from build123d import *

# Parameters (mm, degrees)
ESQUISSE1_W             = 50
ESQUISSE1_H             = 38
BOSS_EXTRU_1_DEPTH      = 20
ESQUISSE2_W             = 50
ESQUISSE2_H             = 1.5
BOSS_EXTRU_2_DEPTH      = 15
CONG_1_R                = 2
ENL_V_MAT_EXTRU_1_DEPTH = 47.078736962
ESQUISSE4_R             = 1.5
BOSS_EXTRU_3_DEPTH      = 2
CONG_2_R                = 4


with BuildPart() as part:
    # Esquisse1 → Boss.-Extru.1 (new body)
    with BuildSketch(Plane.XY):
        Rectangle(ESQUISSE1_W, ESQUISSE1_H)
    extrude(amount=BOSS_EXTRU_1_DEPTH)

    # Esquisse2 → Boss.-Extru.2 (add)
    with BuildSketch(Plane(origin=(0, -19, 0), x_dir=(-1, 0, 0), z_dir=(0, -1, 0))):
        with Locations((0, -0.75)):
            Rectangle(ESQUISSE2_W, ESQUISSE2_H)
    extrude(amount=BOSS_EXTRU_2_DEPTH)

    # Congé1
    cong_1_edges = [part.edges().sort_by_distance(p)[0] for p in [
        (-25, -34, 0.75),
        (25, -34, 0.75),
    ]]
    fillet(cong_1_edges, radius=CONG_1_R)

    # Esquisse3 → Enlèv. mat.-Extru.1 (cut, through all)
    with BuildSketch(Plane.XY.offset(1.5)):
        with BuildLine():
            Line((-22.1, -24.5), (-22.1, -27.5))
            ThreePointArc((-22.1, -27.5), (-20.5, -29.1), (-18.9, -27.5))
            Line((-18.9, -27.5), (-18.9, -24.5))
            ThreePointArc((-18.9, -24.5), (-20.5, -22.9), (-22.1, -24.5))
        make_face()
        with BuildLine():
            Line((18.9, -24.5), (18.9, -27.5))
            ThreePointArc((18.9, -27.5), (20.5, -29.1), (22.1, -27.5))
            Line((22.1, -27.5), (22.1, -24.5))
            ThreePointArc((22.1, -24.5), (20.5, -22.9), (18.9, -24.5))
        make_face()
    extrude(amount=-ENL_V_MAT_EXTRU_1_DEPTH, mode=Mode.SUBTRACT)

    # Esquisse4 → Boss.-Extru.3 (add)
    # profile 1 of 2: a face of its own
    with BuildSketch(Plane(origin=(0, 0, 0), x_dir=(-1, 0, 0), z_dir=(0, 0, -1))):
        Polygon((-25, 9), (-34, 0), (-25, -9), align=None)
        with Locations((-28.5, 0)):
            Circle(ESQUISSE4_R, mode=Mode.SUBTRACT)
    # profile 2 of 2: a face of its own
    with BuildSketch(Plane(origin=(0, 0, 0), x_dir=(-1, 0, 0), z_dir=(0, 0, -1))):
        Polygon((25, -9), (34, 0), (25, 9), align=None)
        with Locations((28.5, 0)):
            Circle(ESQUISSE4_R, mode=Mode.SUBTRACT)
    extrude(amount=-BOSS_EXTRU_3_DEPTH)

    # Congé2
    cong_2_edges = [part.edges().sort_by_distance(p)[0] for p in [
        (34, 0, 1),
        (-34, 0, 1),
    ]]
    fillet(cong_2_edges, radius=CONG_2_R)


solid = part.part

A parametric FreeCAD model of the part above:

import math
import FreeCAD as App
import Part
import Sketcher


def edges_at(feature, points):
    """Names of the edges that pass closest to the given points."""
    edges = feature.Shape.Edges
    near = lambda p: min(range(len(edges)), key=lambda i: edges[i].distToShape(Part.Vertex(*p))[0])
    return sorted({f"Edge{near(p) + 1}" for p in points})

doc = App.newDocument("Part")
body = doc.addObject("PartDesign::Body", "Body")

sketch1 = doc.addObject("Sketcher::SketchObject", "Sketch")
body.addObject(sketch1)
sketch1.AttachmentSupport = (doc.XY_Plane, [""])
sketch1.MapMode = "FlatFace"
sketch1.addGeometry(Part.LineSegment(App.Vector(-25, 19, 0), App.Vector(-25, -19, 0)), False)
sketch1.addGeometry(Part.LineSegment(App.Vector(-25, -19, 0), App.Vector(25, -19, 0)), False)
sketch1.addGeometry(Part.LineSegment(App.Vector(25, -19, 0), App.Vector(25, 19, 0)), False)
sketch1.addGeometry(Part.LineSegment(App.Vector(25, 19, 0), App.Vector(-25, 19, 0)), False)
sketch1.addConstraint(Sketcher.Constraint("Coincident", 0, 2, 1, 1))
sketch1.addConstraint(Sketcher.Constraint("Coincident", 1, 2, 2, 1))
sketch1.addConstraint(Sketcher.Constraint("Coincident", 2, 2, 3, 1))
sketch1.addConstraint(Sketcher.Constraint("Coincident", 3, 2, 0, 1))
sketch1.addConstraint(Sketcher.Constraint("Vertical", 0))
sketch1.addConstraint(Sketcher.Constraint("Horizontal", 1))
sketch1.addConstraint(Sketcher.Constraint("Vertical", 2))
sketch1.addConstraint(Sketcher.Constraint("Horizontal", 3))
sketch1.addConstraint(Sketcher.Constraint("Symmetric", 0, 2, 2, 2, -1, 1))
sketch1.addConstraint(Sketcher.Constraint("DistanceX", 1, 1, 1, 2, 50.0))
sketch1.addConstraint(Sketcher.Constraint("DistanceY", 0, 2, 0, 1, 38.0))
pad1 = doc.addObject("PartDesign::Pad", "Pad")
body.addObject(pad1)
pad1.Profile = sketch1
pad1.Length = 20

sketch2 = doc.addObject("Sketcher::SketchObject", "Sketch001")
body.addObject(sketch2)
sketch2.AttachmentSupport = (doc.XZ_Plane, [""])
sketch2.MapMode = "FlatFace"
sketch2.AttachmentOffset = App.Placement(App.Vector(0, 0, 19), App.Rotation())
sketch2.addGeometry(Part.LineSegment(App.Vector(25, 0, 0), App.Vector(25, 1.5, 0)), False)
sketch2.addGeometry(Part.LineSegment(App.Vector(25, 1.5, 0), App.Vector(-25, 1.5, 0)), False)
sketch2.addGeometry(Part.LineSegment(App.Vector(-25, 1.5, 0), App.Vector(-25, 0, 0)), False)
sketch2.addGeometry(Part.LineSegment(App.Vector(-25, 0, 0), App.Vector(25, 0, 0)), False)
sketch2.addConstraint(Sketcher.Constraint("Coincident", 0, 2, 1, 1))
sketch2.addConstraint(Sketcher.Constraint("Coincident", 1, 2, 2, 1))
sketch2.addConstraint(Sketcher.Constraint("Coincident", 2, 2, 3, 1))
sketch2.addConstraint(Sketcher.Constraint("Coincident", 3, 2, 0, 1))
sketch2.addConstraint(Sketcher.Constraint("Vertical", 0))
sketch2.addConstraint(Sketcher.Constraint("Horizontal", 1))
sketch2.addConstraint(Sketcher.Constraint("Vertical", 2))
sketch2.addConstraint(Sketcher.Constraint("Horizontal", 3))
sketch2.addConstraint(Sketcher.Constraint("Symmetric", 2, 2, 3, 2, -1, 1))
sketch2.addConstraint(Sketcher.Constraint("DistanceX", 1, 2, 1, 1, 50.0))
sketch2.addConstraint(Sketcher.Constraint("DistanceY", 0, 1, 0, 2, 1.5))
pad2 = doc.addObject("PartDesign::Pad", "Pad001")
body.addObject(pad2)
pad2.Profile = sketch2
pad2.Length = 15
doc.recompute()

fillet = doc.addObject("PartDesign::Fillet", "Fillet")
body.addObject(fillet)
fillet.Base = (pad2, edges_at(pad2, [(-25, -34, 0.75), (25, -34, 0.75)]))
fillet.Radius = 2

sketch3 = doc.addObject("Sketcher::SketchObject", "Sketch002")
body.addObject(sketch3)
sketch3.AttachmentSupport = (doc.XY_Plane, [""])
sketch3.MapMode = "FlatFace"
sketch3.AttachmentOffset = App.Placement(App.Vector(0, 0, 1.5), App.Rotation())
sketch3.addGeometry(Part.LineSegment(App.Vector(-22.1, -24.5, 0), App.Vector(-22.1, -27.5, 0)), False)
sketch3.addGeometry(Part.ArcOfCircle(Part.Circle(App.Vector(-20.5, -27.5, 0), App.Vector(0, 0, 1), 1.6), math.radians(180), math.radians(360)), False)
sketch3.addGeometry(Part.LineSegment(App.Vector(-18.9, -27.5, 0), App.Vector(-18.9, -24.5, 0)), False)
sketch3.addGeometry(Part.ArcOfCircle(Part.Circle(App.Vector(-20.5, -24.5, 0), App.Vector(0, 0, 1), 1.6), math.radians(0), math.radians(180)), False)
sketch3.addGeometry(Part.LineSegment(App.Vector(18.9, -24.5, 0), App.Vector(18.9, -27.5, 0)), False)
sketch3.addGeometry(Part.ArcOfCircle(Part.Circle(App.Vector(20.5, -27.5, 0), App.Vector(0, 0, 1), 1.6), math.radians(180), math.radians(360)), False)
sketch3.addGeometry(Part.LineSegment(App.Vector(22.1, -27.5, 0), App.Vector(22.1, -24.5, 0)), False)
sketch3.addGeometry(Part.ArcOfCircle(Part.Circle(App.Vector(20.5, -24.5, 0), App.Vector(0, 0, 1), 1.6), math.radians(0), math.radians(180)), False)
sketch3.addConstraint(Sketcher.Constraint("Tangent", 0, 2, 1, 1))
sketch3.addConstraint(Sketcher.Constraint("Tangent", 1, 2, 2, 1))
sketch3.addConstraint(Sketcher.Constraint("Tangent", 2, 2, 3, 1))
sketch3.addConstraint(Sketcher.Constraint("Tangent", 3, 2, 0, 1))
sketch3.addConstraint(Sketcher.Constraint("Tangent", 4, 2, 5, 1))
sketch3.addConstraint(Sketcher.Constraint("Tangent", 5, 2, 6, 1))
sketch3.addConstraint(Sketcher.Constraint("Tangent", 6, 2, 7, 1))
sketch3.addConstraint(Sketcher.Constraint("Tangent", 7, 2, 4, 1))
sketch3.addConstraint(Sketcher.Constraint("Vertical", 0))
sketch3.addConstraint(Sketcher.Constraint("Vertical", 2))
sketch3.addConstraint(Sketcher.Constraint("Vertical", 4))
sketch3.addConstraint(Sketcher.Constraint("Vertical", 6))
sketch3.addConstraint(Sketcher.Constraint("Equal", 3, 5))
sketch3.addConstraint(Sketcher.Constraint("Symmetric", 1, 3, 5, 3, -2))
sketch3.addConstraint(Sketcher.Constraint("Horizontal", 3, 3, 7, 3))
sketch3.addConstraint(Sketcher.Constraint("Radius", 1, 1.6))
sketch3.addConstraint(Sketcher.Constraint("DistanceY", 0, 2, 0, 1, 3.0))
sketch3.addConstraint(Sketcher.Constraint("DistanceX", 1, 3, 5, 3, 41.0))
sketch3.addConstraint(Sketcher.Constraint("DistanceY", 1, 3, -1, 1, 27.5))
pocket1 = doc.addObject("PartDesign::Pocket", "Pocket")
body.addObject(pocket1)
pocket1.Profile = sketch3
pocket1.Type = "ThroughAll"

sketch4 = doc.addObject("Sketcher::SketchObject", "Sketch003")
body.addObject(sketch4)
sketch4.AttachmentSupport = (doc.XY_Plane, [""])
sketch4.MapMode = "FlatFace"
sketch4.addGeometry(Part.LineSegment(App.Vector(25, 9, 0), App.Vector(34, 0, 0)), False)
sketch4.addGeometry(Part.LineSegment(App.Vector(34, 0, 0), App.Vector(25, -9, 0)), False)
sketch4.addGeometry(Part.LineSegment(App.Vector(25, -9, 0), App.Vector(25, 9, 0)), False)
sketch4.addGeometry(Part.Circle(App.Vector(28.5, 0, 0), App.Vector(0, 0, 1), 1.5), False)
sketch4.addGeometry(Part.LineSegment(App.Vector(-25, -9, 0), App.Vector(-34, 0, 0)), False)
sketch4.addGeometry(Part.LineSegment(App.Vector(-34, 0, 0), App.Vector(-25, 9, 0)), False)
sketch4.addGeometry(Part.LineSegment(App.Vector(-25, 9, 0), App.Vector(-25, -9, 0)), False)
sketch4.addGeometry(Part.Circle(App.Vector(-28.5, 0, 0), App.Vector(0, 0, 1), 1.5), False)
sketch4.addConstraint(Sketcher.Constraint("Coincident", 0, 2, 1, 1))
sketch4.addConstraint(Sketcher.Constraint("Coincident", 1, 2, 2, 1))
sketch4.addConstraint(Sketcher.Constraint("Coincident", 2, 2, 0, 1))
sketch4.addConstraint(Sketcher.Constraint("Coincident", 4, 2, 5, 1))
sketch4.addConstraint(Sketcher.Constraint("Coincident", 5, 2, 6, 1))
sketch4.addConstraint(Sketcher.Constraint("Coincident", 6, 2, 4, 1))
sketch4.addConstraint(Sketcher.Constraint("Vertical", 2))
sketch4.addConstraint(Sketcher.Constraint("Vertical", 6))
sketch4.addConstraint(Sketcher.Constraint("Equal", 3, 7))
sketch4.addConstraint(Sketcher.Constraint("Symmetric", 3, 3, 7, 3, -1, 1))
sketch4.addConstraint(Sketcher.Constraint("Symmetric", 0, 2, 4, 2, -1, 1))
sketch4.addConstraint(Sketcher.Constraint("Symmetric", 1, 2, 5, 2, -1, 1))
sketch4.addConstraint(Sketcher.Constraint("PointOnObject", 3, 3, -1))
sketch4.addConstraint(Sketcher.Constraint("PointOnObject", 0, 2, -1))
sketch4.addConstraint(Sketcher.Constraint("Perpendicular", 0, 1))
sketch4.addConstraint(Sketcher.Constraint("Perpendicular", 1, 4))
sketch4.addConstraint(Sketcher.Constraint("Horizontal", 2, 2, 5, 2))
sketch4.addConstraint(Sketcher.Constraint("Diameter", 3, 3.0))
sketch4.addConstraint(Sketcher.Constraint("DistanceY", 2, 1, 2, 2, 18.0))
sketch4.addConstraint(Sketcher.Constraint("DistanceX", -1, 1, 0, 2, 34.0))
sketch4.addConstraint(Sketcher.Constraint("DistanceX", 7, 3, 3, 3, 57.0))
pad3 = doc.addObject("PartDesign::Pad", "Pad002")
body.addObject(pad3)
pad3.Profile = sketch4
pad3.Length = 2
doc.recompute()

fillet2 = doc.addObject("PartDesign::Fillet", "Fillet001")
body.addObject(fillet2)
fillet2.Base = (pad3, edges_at(pad3, [(34, 0, 1), (-34, 0, 1)]))
fillet2.Radius = 4

doc.recompute()
